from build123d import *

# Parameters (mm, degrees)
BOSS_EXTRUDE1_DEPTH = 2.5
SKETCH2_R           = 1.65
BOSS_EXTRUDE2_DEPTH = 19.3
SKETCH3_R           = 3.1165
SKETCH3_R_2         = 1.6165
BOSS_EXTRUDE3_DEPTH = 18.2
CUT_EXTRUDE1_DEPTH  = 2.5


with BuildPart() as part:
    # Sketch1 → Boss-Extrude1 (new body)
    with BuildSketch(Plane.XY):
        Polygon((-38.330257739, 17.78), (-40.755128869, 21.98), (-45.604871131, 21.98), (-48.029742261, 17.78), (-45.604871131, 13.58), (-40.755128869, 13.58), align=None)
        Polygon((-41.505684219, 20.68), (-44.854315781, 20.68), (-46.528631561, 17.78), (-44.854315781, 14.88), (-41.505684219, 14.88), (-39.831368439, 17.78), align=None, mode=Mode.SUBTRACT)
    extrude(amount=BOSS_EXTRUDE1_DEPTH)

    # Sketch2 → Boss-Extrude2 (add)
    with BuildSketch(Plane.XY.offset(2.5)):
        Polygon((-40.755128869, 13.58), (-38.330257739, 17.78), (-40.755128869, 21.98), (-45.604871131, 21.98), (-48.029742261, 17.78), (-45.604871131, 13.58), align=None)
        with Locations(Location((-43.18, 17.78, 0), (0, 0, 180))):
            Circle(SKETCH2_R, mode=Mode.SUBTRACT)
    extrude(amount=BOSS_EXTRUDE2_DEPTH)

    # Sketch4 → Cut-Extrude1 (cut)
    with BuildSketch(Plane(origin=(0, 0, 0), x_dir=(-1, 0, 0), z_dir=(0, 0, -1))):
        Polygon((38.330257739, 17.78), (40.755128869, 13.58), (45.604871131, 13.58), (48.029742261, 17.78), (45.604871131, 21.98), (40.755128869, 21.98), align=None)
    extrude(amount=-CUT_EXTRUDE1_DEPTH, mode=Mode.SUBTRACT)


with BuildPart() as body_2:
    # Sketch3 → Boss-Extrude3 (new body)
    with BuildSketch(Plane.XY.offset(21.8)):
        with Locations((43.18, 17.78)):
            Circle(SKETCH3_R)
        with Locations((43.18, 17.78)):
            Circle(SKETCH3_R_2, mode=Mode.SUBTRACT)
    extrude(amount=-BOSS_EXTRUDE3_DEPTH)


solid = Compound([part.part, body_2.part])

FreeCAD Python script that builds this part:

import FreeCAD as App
import Part
import Sketcher
from FreeCAD import Vector
Q = App.Units.Quantity

doc = App.newDocument("Part")
body = doc.addObject("PartDesign::Body", "Body")

# Sketch on XY plane
sketch1 = body.newObject("Sketcher::SketchObject", "Sketch")
sketch1.AttachmentSupport = (doc.getObject("XY_Plane"), [""])
sketch1.MapMode = "FlatFace"
sketch1.addGeometry(Part.LineSegment(Vector(-38.3, 17.8, 0), Vector(-40.8, 22, 0)), False)
sketch1.addGeometry(Part.LineSegment(Vector(-40.8, 22, 0), Vector(-45.6, 22, 0)), False)
sketch1.addGeometry(Part.LineSegment(Vector(-45.6, 22, 0), Vector(-48, 17.8, 0)), False)
sketch1.addGeometry(Part.LineSegment(Vector(-48, 17.8, 0), Vector(-45.6, 13.6, 0)), False)
sketch1.addGeometry(Part.LineSegment(Vector(-45.6, 13.6, 0), Vector(-40.8, 13.6, 0)), False)
sketch1.addGeometry(Part.LineSegment(Vector(-40.8, 13.6, 0), Vector(-38.3, 17.8, 0)), False)
sketch1.addGeometry(Part.LineSegment(Vector(-44.9, 20.7, 0), Vector(-41.5, 20.7, 0)), False)
sketch1.addGeometry(Part.LineSegment(Vector(-41.5, 20.7, 0), Vector(-39.8, 17.8, 0)), False)
sketch1.addGeometry(Part.LineSegment(Vector(-39.8, 17.8, 0), Vector(-41.5, 14.9, 0)), False)
sketch1.addGeometry(Part.LineSegment(Vector(-41.5, 14.9, 0), Vector(-44.9, 14.9, 0)), False)
sketch1.addGeometry(Part.LineSegment(Vector(-44.9, 14.9, 0), Vector(-46.5, 17.8, 0)), False)
sketch1.addGeometry(Part.LineSegment(Vector(-46.5, 17.8, 0), Vector(-44.9, 20.7, 0)), False)
sketch1.addConstraint(Sketcher.Constraint("Coincident", 0, 2, 1, 1))
sketch1.addConstraint(Sketcher.Constraint("Coincident", 1, 2, 2, 1))
sketch1.addConstraint(Sketcher.Constraint("Coincident", 2, 2, 3, 1))
sketch1.addConstraint(Sketcher.Constraint("Coincident", 3, 2, 4, 1))
sketch1.addConstraint(Sketcher.Constraint("Coincident", 4, 2, 5, 1))
sketch1.addConstraint(Sketcher.Constraint("Coincident", 5, 2, 0, 1))
sketch1.addConstraint(Sketcher.Constraint("Coincident", 6, 2, 7, 1))
sketch1.addConstraint(Sketcher.Constraint("Coincident", 7, 2, 8, 1))
sketch1.addConstraint(Sketcher.Constraint("Coincident", 8, 2, 9, 1))
sketch1.addConstraint(Sketcher.Constraint("Coincident", 9, 2, 10, 1))
sketch1.addConstraint(Sketcher.Constraint("Coincident", 10, 2, 11, 1))
sketch1.addConstraint(Sketcher.Constraint("Coincident", 11, 2, 6, 1))
sketch1.addConstraint(Sketcher.Constraint("Horizontal", 1))
sketch1.addConstraint(Sketcher.Constraint("Horizontal", 4))
sketch1.addConstraint(Sketcher.Constraint("Horizontal", 6))
sketch1.addConstraint(Sketcher.Constraint("Horizontal", 9))
sketch1.addConstraint(Sketcher.Constraint("Parallel", 0, 3))
sketch1.addConstraint(Sketcher.Constraint("Parallel", 2, 5))
sketch1.addConstraint(Sketcher.Constraint("Parallel", 3, 7))
sketch1.addConstraint(Sketcher.Constraint("Parallel", 5, 8))
sketch1.addConstraint(Sketcher.Constraint("Parallel", 7, 10))
sketch1.addConstraint(Sketcher.Constraint("Parallel", 8, 11))
sketch1.addConstraint(Sketcher.Constraint("Horizontal", 2, 2, 5, 2))
sketch1.addConstraint(Sketcher.Constraint("Horizontal", 5, 2, 7, 2))
sketch1.addConstraint(Sketcher.Constraint("Horizontal", 7, 2, 10, 2))
sketch1.addConstraint(Sketcher.Constraint("Vertical", 1, 2, 3, 2))
sketch1.addConstraint(Sketcher.Constraint("Vertical", 0, 2, 4, 2))
sketch1.addConstraint(Sketcher.Constraint("Vertical", 6, 2, 8, 2))
sketch1.addConstraint(Sketcher.Constraint("Angle", 0, Q("120 deg")))
sketch1.addConstraint(Sketcher.Constraint("DistanceY", 2, 2, 1, 2, 4.2))
sketch1.addConstraint(Sketcher.Constraint("DistanceY", 6, 2, 0, 2, 1.3))
sketch1.addConstraint(Sketcher.Constraint("DistanceY", -1, 1, 0, 2, 21.98))
sketch1.addConstraint(Sketcher.Constraint("DistanceX", 6, 1, 6, 2, 3.348632))
sketch1.addConstraint(Sketcher.Constraint("DistanceX", 1, 2, 1, 1, 4.849742))
sketch1.addConstraint(Sketcher.Constraint("DistanceX", 0, 2, -1, 1, 40.755129))
sketch1.addConstraint(Sketcher.Constraint("DistanceX", 7, 2, -1, 1, 39.831368))
pad1 = body.newObject("PartDesign::Pad", "Pad")
pad1.Profile = sketch1
pad1.Length = 2.5

# Sketch on XY plane
sketch2 = body.newObject("Sketcher::SketchObject", "Sketch001")
sketch2.AttachmentSupport = (doc.getObject("XY_Plane"), [""])
sketch2.MapMode = "FlatFace"
sketch2.AttachmentOffset = App.Placement(Vector(0, 0, 2.5), App.Rotation())
sketch2.addGeometry(Part.LineSegment(Vector(-40.8, 13.6, 0), Vector(-38.3, 17.8, 0)), False)
sketch2.addGeometry(Part.LineSegment(Vector(-38.3, 17.8, 0), Vector(-40.8, 22, 0)), False)
sketch2.addGeometry(Part.LineSegment(Vector(-40.8, 22, 0), Vector(-45.6, 22, 0)), False)
sketch2.addGeometry(Part.LineSegment(Vector(-45.6, 22, 0), Vector(-48, 17.8, 0)), False)
sketch2.addGeometry(Part.LineSegment(Vector(-48, 17.8, 0), Vector(-45.6, 13.6, 0)), False)
sketch2.addGeometry(Part.LineSegment(Vector(-45.6, 13.6, 0), Vector(-40.8, 13.6, 0)), False)
sketch2.addGeometry(Part.Circle(Vector(-43.2, 17.8, 0), Vector(0, 0, 1), 1.6), False)
sketch2.addConstraint(Sketcher.Constraint("Coincident", 0, 2, 1, 1))
sketch2.addConstraint(Sketcher.Constraint("Coincident", 1, 2, 2, 1))
sketch2.addConstraint(Sketcher.Constraint("Coincident", 2, 2, 3, 1))
sketch2.addConstraint(Sketcher.Constraint("Coincident", 3, 2, 4, 1))
sketch2.addConstraint(Sketcher.Constraint("Coincident", 4, 2, 5, 1))
sketch2.addConstraint(Sketcher.Constraint("Coincident", 5, 2, 0, 1))
sketch2.addConstraint(Sketcher.Constraint("Horizontal", 2))
sketch2.addConstraint(Sketcher.Constraint("Horizontal", 5))
sketch2.addConstraint(Sketcher.Constraint("Parallel", 0, 3))
sketch2.addConstraint(Sketcher.Constraint("Parallel", 1, 4))
sketch2.addConstraint(Sketcher.Constraint("Horizontal", 6, 3, 0, 2))
sketch2.addConstraint(Sketcher.Constraint("Horizontal", 0, 2, 3, 2))
sketch2.addConstraint(Sketcher.Constraint("Vertical", 2, 2, 4, 2))
sketch2.addConstraint(Sketcher.Constraint("Vertical", 1, 2, 5, 2))
sketch2.addConstraint(Sketcher.Constraint("Diameter", 6, 3.3))
sketch2.addConstraint(Sketcher.Constraint("Angle", 0, Q("60 deg")))
sketch2.addConstraint(Sketcher.Constraint("DistanceY", 0, 2, 1, 2, 4.2))
sketch2.addConstraint(Sketcher.Constraint("DistanceX", 6, 3, -1, 1, 43.18))
sketch2.addConstraint(Sketcher.Constraint("DistanceY", -1, 1, 6, 3, 17.78))
sketch2.addConstraint(Sketcher.Constraint("DistanceX", 2, 2, 2, 1, 4.849742))
sketch2.addConstraint(Sketcher.Constraint("DistanceX", 1, 2, -1, 1, 40.755129))
pad2 = body.newObject("PartDesign::Pad", "Pad001")
pad2.Profile = sketch2
pad2.Length = 19.3

# Sketch on XY plane
sketch3 = body.newObject("Sketcher::SketchObject", "Sketch002")
sketch3.AttachmentSupport = (doc.getObject("XY_Plane"), [""])
sketch3.MapMode = "FlatFace"
sketch3.addGeometry(Part.LineSegment(Vector(-38.3, 17.8, 0), Vector(-40.8, 13.6, 0)), False)
sketch3.addGeometry(Part.LineSegment(Vector(-40.8, 13.6, 0), Vector(-45.6, 13.6, 0)), False)
sketch3.addGeometry(Part.LineSegment(Vector(-45.6, 13.6, 0), Vector(-48, 17.8, 0)), False)
sketch3.addGeometry(Part.LineSegment(Vector(-48, 17.8, 0), Vector(-45.6, 22, 0)), False)
sketch3.addGeometry(Part.LineSegment(Vector(-45.6, 22, 0), Vector(-40.8, 22, 0)), False)
sketch3.addGeometry(Part.LineSegment(Vector(-40.8, 22, 0), Vector(-38.3, 17.8, 0)), False)
sketch3.addConstraint(Sketcher.Constraint("Coincident", 0, 2, 1, 1))
sketch3.addConstraint(Sketcher.Constraint("Coincident", 1, 2, 2, 1))
sketch3.addConstraint(Sketcher.Constraint("Coincident", 2, 2, 3, 1))
sketch3.addConstraint(Sketcher.Constraint("Coincident", 3, 2, 4, 1))
sketch3.addConstraint(Sketcher.Constraint("Coincident", 4, 2, 5, 1))
sketch3.addConstraint(Sketcher.Constraint("Coincident", 5, 2, 0, 1))
sketch3.addConstraint(Sketcher.Constraint("Horizontal", 1))
sketch3.addConstraint(Sketcher.Constraint("Horizontal", 4))
sketch3.addConstraint(Sketcher.Constraint("Parallel", 0, 3))
sketch3.addConstraint(Sketcher.Constraint("Parallel", 2, 5))
sketch3.addConstraint(Sketcher.Constraint("Horizontal", 2, 2, 5, 2))
sketch3.addConstraint(Sketcher.Constraint("Vertical", 1, 2, 3, 2))
sketch3.addConstraint(Sketcher.Constraint("Vertical", 0, 2, 4, 2))
sketch3.addConstraint(Sketcher.Constraint("Angle", 0, Q("-120 deg")))
sketch3.addConstraint(Sketcher.Constraint("DistanceY", 1, 2, 2, 2, 4.2))
sketch3.addConstraint(Sketcher.Constraint("DistanceY", -1, 1, 0, 2, 13.58))
sketch3.addConstraint(Sketcher.Constraint("DistanceX", 1, 2, 1, 1, 4.849742))
sketch3.addConstraint(Sketcher.Constraint("DistanceX", 0, 2, -1, 1, 40.755129))
pocket1 = body.newObject("PartDesign::Pocket", "Pocket")
pocket1.Profile = sketch3
pocket1.Length = 2.5
pocket1.Reversed = True
body2 = doc.addObject("PartDesign::Body", "Body001")

# Sketch on XY plane
sketch4 = body2.newObject("Sketcher::SketchObject", "Sketch003")
sketch4.AttachmentSupport = (doc.getObject("XY_Plane001"), [""])
sketch4.MapMode = "FlatFace"
sketch4.AttachmentOffset = App.Placement(Vector(0, 0, 21.8), App.Rotation())
sketch4.addGeometry(Part.Circle(Vector(43.2, 17.8, 0), Vector(0, 0, 1), 3.1), False)
sketch4.addGeometry(Part.Circle(Vector(43.2, 17.8, 0), Vector(0, 0, 1), 1.6), False)
sketch4.addConstraint(Sketcher.Constraint("Coincident", 1, 3, 0, 3))
sketch4.addConstraint(Sketcher.Constraint("Diameter", 0, 6.233))
sketch4.addConstraint(Sketcher.Constraint("Diameter", 1, 3.233))
sketch4.addConstraint(Sketcher.Constraint("DistanceX", -1, 1, 0, 3, 43.18))
sketch4.addConstraint(Sketcher.Constraint("DistanceY", -1, 1, 0, 3, 17.78))
pad3 = body2.newObject("PartDesign::Pad", "Pad002")
pad3.Profile = sketch4
pad3.Length = 18.2
pad3.Reversed = True

doc.recompute()
